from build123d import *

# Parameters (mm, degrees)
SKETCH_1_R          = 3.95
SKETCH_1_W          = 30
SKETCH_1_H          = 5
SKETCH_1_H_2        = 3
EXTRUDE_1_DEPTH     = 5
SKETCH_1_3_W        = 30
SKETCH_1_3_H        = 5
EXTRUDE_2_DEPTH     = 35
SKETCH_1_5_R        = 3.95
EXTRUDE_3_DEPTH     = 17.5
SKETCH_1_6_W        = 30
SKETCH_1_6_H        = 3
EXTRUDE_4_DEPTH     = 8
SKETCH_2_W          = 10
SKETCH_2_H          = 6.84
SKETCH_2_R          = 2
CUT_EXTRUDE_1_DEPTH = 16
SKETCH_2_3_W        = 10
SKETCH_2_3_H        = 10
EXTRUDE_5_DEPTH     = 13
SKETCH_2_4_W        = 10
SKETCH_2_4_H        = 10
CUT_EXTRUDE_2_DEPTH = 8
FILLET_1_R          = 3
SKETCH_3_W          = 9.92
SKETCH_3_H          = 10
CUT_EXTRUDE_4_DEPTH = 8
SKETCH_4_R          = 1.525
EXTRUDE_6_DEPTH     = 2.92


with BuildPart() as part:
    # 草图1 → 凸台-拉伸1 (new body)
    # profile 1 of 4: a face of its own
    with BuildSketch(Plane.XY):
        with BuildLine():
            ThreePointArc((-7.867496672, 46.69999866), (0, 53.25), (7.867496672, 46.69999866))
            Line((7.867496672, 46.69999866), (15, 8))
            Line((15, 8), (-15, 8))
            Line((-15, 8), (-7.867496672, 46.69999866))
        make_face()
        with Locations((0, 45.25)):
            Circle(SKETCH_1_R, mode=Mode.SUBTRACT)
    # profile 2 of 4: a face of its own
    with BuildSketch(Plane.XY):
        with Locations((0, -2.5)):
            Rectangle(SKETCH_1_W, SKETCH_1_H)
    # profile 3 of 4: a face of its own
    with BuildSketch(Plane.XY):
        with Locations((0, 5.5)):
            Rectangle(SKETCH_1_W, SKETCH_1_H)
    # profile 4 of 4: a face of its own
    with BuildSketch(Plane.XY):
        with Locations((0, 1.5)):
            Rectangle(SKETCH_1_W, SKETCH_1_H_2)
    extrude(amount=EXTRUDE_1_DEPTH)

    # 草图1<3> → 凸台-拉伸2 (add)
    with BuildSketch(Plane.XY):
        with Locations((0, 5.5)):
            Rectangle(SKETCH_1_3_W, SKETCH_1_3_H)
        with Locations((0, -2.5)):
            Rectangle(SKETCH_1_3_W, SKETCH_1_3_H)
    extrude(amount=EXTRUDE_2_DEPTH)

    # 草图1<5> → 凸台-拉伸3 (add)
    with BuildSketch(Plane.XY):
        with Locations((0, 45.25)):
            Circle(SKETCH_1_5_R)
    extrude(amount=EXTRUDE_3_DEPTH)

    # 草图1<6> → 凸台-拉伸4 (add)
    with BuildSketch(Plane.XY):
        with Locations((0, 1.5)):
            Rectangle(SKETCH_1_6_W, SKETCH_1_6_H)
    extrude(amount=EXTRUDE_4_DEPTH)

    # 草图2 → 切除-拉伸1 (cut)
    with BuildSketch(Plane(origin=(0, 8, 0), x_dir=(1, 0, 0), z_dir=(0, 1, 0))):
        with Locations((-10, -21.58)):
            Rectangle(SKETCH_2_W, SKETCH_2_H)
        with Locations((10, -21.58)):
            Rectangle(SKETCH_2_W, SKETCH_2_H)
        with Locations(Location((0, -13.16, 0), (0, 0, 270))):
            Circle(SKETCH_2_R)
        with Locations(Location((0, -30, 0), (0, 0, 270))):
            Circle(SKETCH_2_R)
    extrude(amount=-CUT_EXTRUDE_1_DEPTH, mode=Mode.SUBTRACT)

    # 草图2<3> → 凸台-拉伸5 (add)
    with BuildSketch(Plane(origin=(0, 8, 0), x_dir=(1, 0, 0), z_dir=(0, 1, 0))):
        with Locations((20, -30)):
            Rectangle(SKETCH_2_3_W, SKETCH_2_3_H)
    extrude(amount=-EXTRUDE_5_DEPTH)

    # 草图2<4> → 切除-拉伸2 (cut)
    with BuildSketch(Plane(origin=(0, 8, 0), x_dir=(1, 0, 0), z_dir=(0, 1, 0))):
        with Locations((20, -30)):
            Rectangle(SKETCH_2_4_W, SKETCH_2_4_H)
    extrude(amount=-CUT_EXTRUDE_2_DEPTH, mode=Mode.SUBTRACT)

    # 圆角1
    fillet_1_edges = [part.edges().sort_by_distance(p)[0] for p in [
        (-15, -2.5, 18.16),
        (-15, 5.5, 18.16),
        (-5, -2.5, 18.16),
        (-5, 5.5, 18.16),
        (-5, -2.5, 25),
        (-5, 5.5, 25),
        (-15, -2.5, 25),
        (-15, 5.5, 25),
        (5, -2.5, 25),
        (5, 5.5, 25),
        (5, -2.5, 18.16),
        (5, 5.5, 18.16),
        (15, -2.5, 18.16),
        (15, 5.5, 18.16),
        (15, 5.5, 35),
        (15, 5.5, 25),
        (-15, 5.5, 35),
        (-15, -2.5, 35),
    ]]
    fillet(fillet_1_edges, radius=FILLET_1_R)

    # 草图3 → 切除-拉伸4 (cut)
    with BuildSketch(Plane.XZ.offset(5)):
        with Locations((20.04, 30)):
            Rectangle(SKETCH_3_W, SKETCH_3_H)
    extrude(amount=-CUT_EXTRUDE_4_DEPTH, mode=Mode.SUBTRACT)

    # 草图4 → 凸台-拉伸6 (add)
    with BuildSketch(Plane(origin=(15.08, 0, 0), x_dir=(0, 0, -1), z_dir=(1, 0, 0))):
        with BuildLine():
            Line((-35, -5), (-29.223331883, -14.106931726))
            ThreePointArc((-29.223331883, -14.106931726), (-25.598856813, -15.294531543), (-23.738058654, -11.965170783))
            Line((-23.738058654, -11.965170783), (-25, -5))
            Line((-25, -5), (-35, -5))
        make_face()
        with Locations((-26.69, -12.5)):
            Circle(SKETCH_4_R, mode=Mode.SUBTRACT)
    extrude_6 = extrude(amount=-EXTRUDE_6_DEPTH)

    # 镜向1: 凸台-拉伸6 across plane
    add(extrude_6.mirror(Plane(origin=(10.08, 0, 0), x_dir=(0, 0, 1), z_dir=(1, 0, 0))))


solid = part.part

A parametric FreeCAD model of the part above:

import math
import FreeCAD as App
import Part
import Sketcher
Q = App.Units.Quantity


def edges_at(feature, points):
    """Names of the edges that pass closest to the given points."""
    edges = feature.Shape.Edges
    near = lambda p: min(range(len(edges)), key=lambda i: edges[i].distToShape(Part.Vertex(*p))[0])
    return sorted({f"Edge{near(p) + 1}" for p in points})


def add_polygon(sketch, points):
    """Adds a closed chain of lines whose ends are joined by coincident constraints."""
    first, n = sketch.GeometryCount, len(points)
    for a, b in zip(points, points[1:] + points[:1]):
        sketch.addGeometry(Part.LineSegment(App.Vector(*a, 0), App.Vector(*b, 0)), False)
    for i in range(n):
        sketch.addConstraint(Sketcher.Constraint("Coincident", first + i, 2, first + (i + 1) % n, 1))

doc = App.newDocument("Part")
body = doc.addObject("PartDesign::Body", "Body")

# Sketch on XY plane
sketch1 = body.newObject("Sketcher::SketchObject", "Sketch")
sketch1.AttachmentSupport = (doc.getObject("XY_Plane"), [""])
sketch1.MapMode = "FlatFace"
sketch1.addGeometry([
    Part.ArcOfCircle(Part.Circle(App.Vector(0, 45.2, 0), App.Vector(0, 0, 1), 8), math.radians(10), math.radians(170)),  # 0
    Part.LineSegment(App.Vector(-7.9, 46.7, 0), App.Vector(-15, 8, 0)),  # 1
    Part.LineSegment(App.Vector(-15, 8, 0), App.Vector(-15, -5, 0)),  # 2
    Part.LineSegment(App.Vector(-15, -5, 0), App.Vector(15, -5, 0)),  # 3
    Part.LineSegment(App.Vector(15, -5, 0), App.Vector(15, 8, 0)),  # 4
    Part.LineSegment(App.Vector(15, 8, 0), App.Vector(7.9, 46.7, 0)),  # 5
    Part.Circle(App.Vector(0, 45.2, 0), App.Vector(0, 0, 1), 4),  # 6
], False)
sketch1.addConstraint([
    Sketcher.Constraint("Tangent", 0, 2, 1, 1),
    Sketcher.Constraint("Coincident", 1, 2, 2, 1),
    Sketcher.Constraint("Coincident", 2, 2, 3, 1),
    Sketcher.Constraint("Coincident", 3, 2, 4, 1),
    Sketcher.Constraint("Coincident", 4, 2, 5, 1),
    Sketcher.Constraint("Tangent", 5, 2, 0, 1),
    Sketcher.Constraint("Vertical", 2),
    Sketcher.Constraint("Horizontal", 3),
    Sketcher.Constraint("Vertical", 4),
    Sketcher.Constraint("Coincident", 6, 3, 0, 3),
    Sketcher.Constraint("Symmetric", 1, 2, 4, 2, -2),
    Sketcher.Constraint("PointOnObject", 0, 3, -2),
    Sketcher.Constraint("Radius", 0, Q("8 mm")),
    Sketcher.Constraint("Diameter", 6, Q("7.9 mm")),
    Sketcher.Constraint("DistanceX", 3, 1, 3, 2, Q("30 mm")),
    Sketcher.Constraint("DistanceY", 2, 2, 2, 1, Q("13 mm")),
    Sketcher.Constraint("DistanceY", -1, 1, 1, 2, Q("8 mm")),
    Sketcher.Constraint("DistanceY", -1, 1, 0, 2, Q("46.699999 mm")),
])
pad1 = body.newObject("PartDesign::Pad", "Pad")
pad1.Profile = sketch1
pad1.Length = 5

# Sketch on XY plane
sketch2 = body.newObject("Sketcher::SketchObject", "Sketch001")
sketch2.AttachmentSupport = (doc.getObject("XY_Plane"), [""])
sketch2.MapMode = "FlatFace"
add_polygon(sketch2, [(-15, 8), (-15, 3), (15, 3), (15, 8)])  # lines 0-3
add_polygon(sketch2, [(-15, 0), (-15, -5), (15, -5), (15, 0)])  # lines 4-7
sketch2.addConstraint([
    Sketcher.Constraint("Vertical", 0),
    Sketcher.Constraint("Horizontal", 1),
    Sketcher.Constraint("Vertical", 2),
    Sketcher.Constraint("Horizontal", 3),
    Sketcher.Constraint("Vertical", 4),
    Sketcher.Constraint("Horizontal", 5),
    Sketcher.Constraint("Vertical", 6),
    Sketcher.Constraint("Horizontal", 7),
    Sketcher.Constraint("Symmetric", 6, 2, 7, 2, -1, 1),
    Sketcher.Constraint("Vertical", 3, 2, 4, 2),
    Sketcher.Constraint("Vertical", 2, 2, 5, 2),
    Sketcher.Constraint("Equal", 2, 4),
    Sketcher.Constraint("DistanceX", 1, 1, 1, 2, Q("30 mm")),
    Sketcher.Constraint("DistanceY", 0, 2, 0, 1, Q("5 mm")),
    Sketcher.Constraint("DistanceY", -1, 1, 0, 2, Q("3 mm")),
])
pad2 = body.newObject("PartDesign::Pad", "Pad001")
pad2.Profile = sketch2
pad2.Length = 35

# Sketch on XY plane
sketch3 = body.newObject("Sketcher::SketchObject", "Sketch002")
sketch3.AttachmentSupport = (doc.getObject("XY_Plane"), [""])
sketch3.MapMode = "FlatFace"
sketch3.addGeometry(Part.Circle(App.Vector(0, 45.2, 0), App.Vector(0, 0, 1), 4), False)
sketch3.addConstraint([
    Sketcher.Constraint("PointOnObject", 0, 3, -2),
    Sketcher.Constraint("Diameter", 0, Q("7.9 mm")),
    Sketcher.Constraint("DistanceY", -1, 1, 0, 3, Q("45.25 mm")),
])
pad3 = body.newObject("PartDesign::Pad", "Pad002")
pad3.Profile = sketch3
pad3.Length = 17.5

# Sketch on XY plane
sketch4 = body.newObject("Sketcher::SketchObject", "Sketch003")
sketch4.AttachmentSupport = (doc.getObject("XY_Plane"), [""])
sketch4.MapMode = "FlatFace"
add_polygon(sketch4, [(-15, 3), (-15, 0), (15, 0), (15, 3)])  # lines 0-3
sketch4.addConstraint([
    Sketcher.Constraint("Vertical", 0),
    Sketcher.Constraint("Horizontal", 1),
    Sketcher.Constraint("Vertical", 2),
    Sketcher.Constraint("Horizontal", 3),
    Sketcher.Constraint("Symmetric", 0, 2, 1, 2, -1, 1),
    Sketcher.Constraint("DistanceX", 1, 1, 1, 2, Q("30 mm")),
    Sketcher.Constraint("DistanceY", 0, 2, 0, 1, Q("3 mm")),
])
pad4 = body.newObject("PartDesign::Pad", "Pad003")
pad4.Profile = sketch4
pad4.Length = 8

# Sketch on XZ plane
sketch5 = body.newObject("Sketcher::SketchObject", "Sketch004")
sketch5.AttachmentSupport = (doc.getObject("XZ_Plane"), [""])
sketch5.MapMode = "FlatFace"
sketch5.AttachmentOffset = App.Placement(App.Vector(0, 0, -8), App.Rotation())
add_polygon(sketch5, [(-15, 18.2), (-15, 25), (-5, 25), (-5, 18.2)])  # lines 0-3
add_polygon(sketch5, [(5, 18.2), (5, 25), (15, 25), (15, 18.2)])  # lines 4-7
sketch5.addGeometry(Part.Circle(App.Vector(0, 13.2, 0), App.Vector(0, 0, 1), 2), False)  # 8
sketch5.addGeometry(Part.Circle(App.Vector(0, 30, 0), App.Vector(0, 0, 1), 2), False)  # 9
sketch5.addConstraint([
    Sketcher.Constraint("Vertical", 0),
    Sketcher.Constraint("Horizontal", 1),
    Sketcher.Constraint("Vertical", 2),
    Sketcher.Constraint("Horizontal", 3),
    Sketcher.Constraint("Vertical", 4),
    Sketcher.Constraint("Horizontal", 5),
    Sketcher.Constraint("Vertical", 6),
    Sketcher.Constraint("Horizontal", 7),
    Sketcher.Constraint("Equal", 8, 9),
    Sketcher.Constraint("Symmetric", 1, 2, 4, 2, -2),
    Sketcher.Constraint("Symmetric", 3, 2, 6, 2, -2),
    Sketcher.Constraint("PointOnObject", 8, 3, -2),
    Sketcher.Constraint("PointOnObject", 9, 3, -2),
    Sketcher.Constraint("Diameter", 8, Q("4 mm")),
    Sketcher.Constraint("DistanceX", 1, 1, 1, 2, Q("10 mm")),
    Sketcher.Constraint("DistanceY", -1, 1, 9, 3, Q("30 mm")),
    Sketcher.Constraint("DistanceX", 0, 2, -1, 1, Q("15 mm")),
    Sketcher.Constraint("DistanceY", -1, 1, 0, 2, Q("25 mm")),
    Sketcher.Constraint("DistanceY", 8, 3, 2, 2, Q("5 mm")),
    Sketcher.Constraint("DistanceY", 0, 1, 0, 2, Q("6.84 mm")),
])
pocket1 = body.newObject("PartDesign::Pocket", "Pocket")
pocket1.Profile = sketch5
pocket1.Length = 16
pocket1.Reversed = True

# Sketch on XZ plane
sketch6 = body.newObject("Sketcher::SketchObject", "Sketch005")
sketch6.AttachmentSupport = (doc.getObject("XZ_Plane"), [""])
sketch6.MapMode = "FlatFace"
sketch6.AttachmentOffset = App.Placement(App.Vector(0, 0, -8), App.Rotation())
add_polygon(sketch6, [(15, 25), (15, 35), (25, 35), (25, 25)])  # lines 0-3
sketch6.addConstraint([
    Sketcher.Constraint("Vertical", 0),
    Sketcher.Constraint("Horizontal", 1),
    Sketcher.Constraint("Vertical", 2),
    Sketcher.Constraint("Horizontal", 3),
    Sketcher.Constraint("Equal", 3, 0),
    Sketcher.Constraint("DistanceX", 1, 1, 1, 2, Q("10 mm")),
    Sketcher.Constraint("DistanceX", -1, 1, 0, 2, Q("15 mm")),
    Sketcher.Constraint("DistanceY", -1, 1, 0, 2, Q("35 mm")),
])
pad5 = body.newObject("PartDesign::Pad", "Pad004")
pad5.Profile = sketch6
pad5.Length = 13

# Sketch on XZ plane
sketch7 = body.newObject("Sketcher::SketchObject", "Sketch006")
sketch7.AttachmentSupport = (doc.getObject("XZ_Plane"), [""])
sketch7.MapMode = "FlatFace"
sketch7.AttachmentOffset = App.Placement(App.Vector(0, 0, -8), App.Rotation())
add_polygon(sketch7, [(15, 25), (15, 35), (25, 35), (25, 25)])  # lines 0-3
sketch7.addConstraint([
    Sketcher.Constraint("Vertical", 0),
    Sketcher.Constraint("Horizontal", 1),
    Sketcher.Constraint("Vertical", 2),
    Sketcher.Constraint("Horizontal", 3),
    Sketcher.Constraint("Equal", 3, 0),
    Sketcher.Constraint("DistanceX", 1, 1, 1, 2, Q("10 mm")),
    Sketcher.Constraint("DistanceX", -1, 1, 0, 2, Q("15 mm")),
    Sketcher.Constraint("DistanceY", -1, 1, 0, 2, Q("35 mm")),
])
pocket2 = body.newObject("PartDesign::Pocket", "Pocket001")
pocket2.Profile = sketch7
pocket2.Length = 8
pocket2.Reversed = True
doc.recompute()

fillet = body.newObject("PartDesign::Fillet", "Fillet")
fillet.Base = (pocket2, edges_at(pocket2, [
    (-15, -2.5, 18.16),
    (-15, 5.5, 18.16),
    (-5, -2.5, 18.16),
    (-5, 5.5, 18.16),
    (-5, -2.5, 25),
    (-5, 5.5, 25),
    (-15, -2.5, 25),
    (-15, 5.5, 25),
    (5, -2.5, 25),
    (5, 5.5, 25),
    (5, -2.5, 18.16),
    (5, 5.5, 18.16),
    (15, -2.5, 18.16),
    (15, 5.5, 18.16),
    (15, 5.5, 35),
    (15, 5.5, 25),
    (-15, 5.5, 35),
    (-15, -2.5, 35),
]))
fillet.Radius = 3

# Sketch on XZ plane
sketch8 = body.newObject("Sketcher::SketchObject", "Sketch007")
sketch8.AttachmentSupport = (doc.getObject("XZ_Plane"), [""])
sketch8.MapMode = "FlatFace"
sketch8.AttachmentOffset = App.Placement(App.Vector(0, 0, 5), App.Rotation())
add_polygon(sketch8, [(15, 35), (15, 25), (25, 25), (25, 35)])  # lines 0-3
sketch8.addConstraint([
    Sketcher.Constraint("Vertical", 0),
    Sketcher.Constraint("Horizontal", 1),
    Sketcher.Constraint("Vertical", 2),
    Sketcher.Constraint("Horizontal", 3),
    Sketcher.Constraint("DistanceY", 0, 2, 0, 1, Q("10 mm")),
    Sketcher.Constraint("DistanceY", -1, 1, 0, 2, Q("25 mm")),
    Sketcher.Constraint("DistanceX", -1, 1, 1, 2, Q("25 mm")),
    Sketcher.Constraint("DistanceX", 1, 1, 1, 2, Q("9.92 mm")),
])
pocket3 = body.newObject("PartDesign::Pocket", "Pocket002")
pocket3.Profile = sketch8
pocket3.Length = 8

# Sketch on YZ plane
sketch9 = body.newObject("Sketcher::SketchObject", "Sketch008")
sketch9.AttachmentSupport = (doc.getObject("YZ_Plane"), [""])
sketch9.MapMode = "FlatFace"
sketch9.AttachmentOffset = App.Placement(App.Vector(0, 0, 15.08), App.Rotation())
sketch9.addGeometry([
    Part.LineSegment(App.Vector(-5, 35, 0), App.Vector(-14.1, 29.2, 0)),  # 0
    Part.ArcOfCircle(Part.Circle(App.Vector(-12.5, 26.7, 0), App.Vector(0, 0, 1), 3), math.radians(122), math.radians(280)),  # 1
    Part.LineSegment(App.Vector(-12, 23.7, 0), App.Vector(-5, 25, 0)),  # 2
    Part.LineSegment(App.Vector(-5, 25, 0), App.Vector(-5, 35, 0)),  # 3
    Part.Circle(App.Vector(-12.5, 26.7, 0), App.Vector(0, 0, 1), 1.5),  # 4
], False)
sketch9.addConstraint([
    Sketcher.Constraint("Tangent", 0, 2, 1, 1),
    Sketcher.Constraint("Tangent", 1, 2, 2, 1),
    Sketcher.Constraint("Coincident", 2, 2, 3, 1),
    Sketcher.Constraint("Coincident", 3, 2, 0, 1),
    Sketcher.Constraint("Vertical", 3),
    Sketcher.Constraint("Coincident", 4, 3, 1, 3),
    Sketcher.Constraint("Radius", 1, Q("3 mm")),
    Sketcher.Constraint("Diameter", 4, Q("3.05 mm")),
    Sketcher.Constraint("DistanceY", 3, 1, 3, 2, Q("10 mm")),
    Sketcher.Constraint("DistanceX", 2, 2, -1, 1, Q("5 mm")),
    Sketcher.Constraint("DistanceY", -1, 1, 2, 2, Q("25 mm")),
    Sketcher.Constraint("DistanceX", 1, 3, -1, 1, Q("12.5 mm")),
    Sketcher.Constraint("DistanceY", -1, 1, 1, 3, Q("26.69 mm")),
])
pad6 = body.newObject("PartDesign::Pad", "Pad005")
pad6.Profile = sketch9
pad6.Length = 2.92
pad6.Reversed = True
doc.recompute()

datumplane = body.newObject("PartDesign::Plane", "DatumPlane")
datumplane.AttachmentSupport = (doc.getObject("YZ_Plane"), [""])
datumplane.MapMode = "FlatFace"
datumplane.AttachmentOffset = App.Placement(App.Vector(0, 0, 10.08), App.Rotation())
mirrored = body.newObject("PartDesign::Mirrored", "Mirrored")
mirrored.Originals = [pad6]
mirrored.MirrorPlane = (datumplane, [""])
body.Tip = mirrored

doc.recompute()
